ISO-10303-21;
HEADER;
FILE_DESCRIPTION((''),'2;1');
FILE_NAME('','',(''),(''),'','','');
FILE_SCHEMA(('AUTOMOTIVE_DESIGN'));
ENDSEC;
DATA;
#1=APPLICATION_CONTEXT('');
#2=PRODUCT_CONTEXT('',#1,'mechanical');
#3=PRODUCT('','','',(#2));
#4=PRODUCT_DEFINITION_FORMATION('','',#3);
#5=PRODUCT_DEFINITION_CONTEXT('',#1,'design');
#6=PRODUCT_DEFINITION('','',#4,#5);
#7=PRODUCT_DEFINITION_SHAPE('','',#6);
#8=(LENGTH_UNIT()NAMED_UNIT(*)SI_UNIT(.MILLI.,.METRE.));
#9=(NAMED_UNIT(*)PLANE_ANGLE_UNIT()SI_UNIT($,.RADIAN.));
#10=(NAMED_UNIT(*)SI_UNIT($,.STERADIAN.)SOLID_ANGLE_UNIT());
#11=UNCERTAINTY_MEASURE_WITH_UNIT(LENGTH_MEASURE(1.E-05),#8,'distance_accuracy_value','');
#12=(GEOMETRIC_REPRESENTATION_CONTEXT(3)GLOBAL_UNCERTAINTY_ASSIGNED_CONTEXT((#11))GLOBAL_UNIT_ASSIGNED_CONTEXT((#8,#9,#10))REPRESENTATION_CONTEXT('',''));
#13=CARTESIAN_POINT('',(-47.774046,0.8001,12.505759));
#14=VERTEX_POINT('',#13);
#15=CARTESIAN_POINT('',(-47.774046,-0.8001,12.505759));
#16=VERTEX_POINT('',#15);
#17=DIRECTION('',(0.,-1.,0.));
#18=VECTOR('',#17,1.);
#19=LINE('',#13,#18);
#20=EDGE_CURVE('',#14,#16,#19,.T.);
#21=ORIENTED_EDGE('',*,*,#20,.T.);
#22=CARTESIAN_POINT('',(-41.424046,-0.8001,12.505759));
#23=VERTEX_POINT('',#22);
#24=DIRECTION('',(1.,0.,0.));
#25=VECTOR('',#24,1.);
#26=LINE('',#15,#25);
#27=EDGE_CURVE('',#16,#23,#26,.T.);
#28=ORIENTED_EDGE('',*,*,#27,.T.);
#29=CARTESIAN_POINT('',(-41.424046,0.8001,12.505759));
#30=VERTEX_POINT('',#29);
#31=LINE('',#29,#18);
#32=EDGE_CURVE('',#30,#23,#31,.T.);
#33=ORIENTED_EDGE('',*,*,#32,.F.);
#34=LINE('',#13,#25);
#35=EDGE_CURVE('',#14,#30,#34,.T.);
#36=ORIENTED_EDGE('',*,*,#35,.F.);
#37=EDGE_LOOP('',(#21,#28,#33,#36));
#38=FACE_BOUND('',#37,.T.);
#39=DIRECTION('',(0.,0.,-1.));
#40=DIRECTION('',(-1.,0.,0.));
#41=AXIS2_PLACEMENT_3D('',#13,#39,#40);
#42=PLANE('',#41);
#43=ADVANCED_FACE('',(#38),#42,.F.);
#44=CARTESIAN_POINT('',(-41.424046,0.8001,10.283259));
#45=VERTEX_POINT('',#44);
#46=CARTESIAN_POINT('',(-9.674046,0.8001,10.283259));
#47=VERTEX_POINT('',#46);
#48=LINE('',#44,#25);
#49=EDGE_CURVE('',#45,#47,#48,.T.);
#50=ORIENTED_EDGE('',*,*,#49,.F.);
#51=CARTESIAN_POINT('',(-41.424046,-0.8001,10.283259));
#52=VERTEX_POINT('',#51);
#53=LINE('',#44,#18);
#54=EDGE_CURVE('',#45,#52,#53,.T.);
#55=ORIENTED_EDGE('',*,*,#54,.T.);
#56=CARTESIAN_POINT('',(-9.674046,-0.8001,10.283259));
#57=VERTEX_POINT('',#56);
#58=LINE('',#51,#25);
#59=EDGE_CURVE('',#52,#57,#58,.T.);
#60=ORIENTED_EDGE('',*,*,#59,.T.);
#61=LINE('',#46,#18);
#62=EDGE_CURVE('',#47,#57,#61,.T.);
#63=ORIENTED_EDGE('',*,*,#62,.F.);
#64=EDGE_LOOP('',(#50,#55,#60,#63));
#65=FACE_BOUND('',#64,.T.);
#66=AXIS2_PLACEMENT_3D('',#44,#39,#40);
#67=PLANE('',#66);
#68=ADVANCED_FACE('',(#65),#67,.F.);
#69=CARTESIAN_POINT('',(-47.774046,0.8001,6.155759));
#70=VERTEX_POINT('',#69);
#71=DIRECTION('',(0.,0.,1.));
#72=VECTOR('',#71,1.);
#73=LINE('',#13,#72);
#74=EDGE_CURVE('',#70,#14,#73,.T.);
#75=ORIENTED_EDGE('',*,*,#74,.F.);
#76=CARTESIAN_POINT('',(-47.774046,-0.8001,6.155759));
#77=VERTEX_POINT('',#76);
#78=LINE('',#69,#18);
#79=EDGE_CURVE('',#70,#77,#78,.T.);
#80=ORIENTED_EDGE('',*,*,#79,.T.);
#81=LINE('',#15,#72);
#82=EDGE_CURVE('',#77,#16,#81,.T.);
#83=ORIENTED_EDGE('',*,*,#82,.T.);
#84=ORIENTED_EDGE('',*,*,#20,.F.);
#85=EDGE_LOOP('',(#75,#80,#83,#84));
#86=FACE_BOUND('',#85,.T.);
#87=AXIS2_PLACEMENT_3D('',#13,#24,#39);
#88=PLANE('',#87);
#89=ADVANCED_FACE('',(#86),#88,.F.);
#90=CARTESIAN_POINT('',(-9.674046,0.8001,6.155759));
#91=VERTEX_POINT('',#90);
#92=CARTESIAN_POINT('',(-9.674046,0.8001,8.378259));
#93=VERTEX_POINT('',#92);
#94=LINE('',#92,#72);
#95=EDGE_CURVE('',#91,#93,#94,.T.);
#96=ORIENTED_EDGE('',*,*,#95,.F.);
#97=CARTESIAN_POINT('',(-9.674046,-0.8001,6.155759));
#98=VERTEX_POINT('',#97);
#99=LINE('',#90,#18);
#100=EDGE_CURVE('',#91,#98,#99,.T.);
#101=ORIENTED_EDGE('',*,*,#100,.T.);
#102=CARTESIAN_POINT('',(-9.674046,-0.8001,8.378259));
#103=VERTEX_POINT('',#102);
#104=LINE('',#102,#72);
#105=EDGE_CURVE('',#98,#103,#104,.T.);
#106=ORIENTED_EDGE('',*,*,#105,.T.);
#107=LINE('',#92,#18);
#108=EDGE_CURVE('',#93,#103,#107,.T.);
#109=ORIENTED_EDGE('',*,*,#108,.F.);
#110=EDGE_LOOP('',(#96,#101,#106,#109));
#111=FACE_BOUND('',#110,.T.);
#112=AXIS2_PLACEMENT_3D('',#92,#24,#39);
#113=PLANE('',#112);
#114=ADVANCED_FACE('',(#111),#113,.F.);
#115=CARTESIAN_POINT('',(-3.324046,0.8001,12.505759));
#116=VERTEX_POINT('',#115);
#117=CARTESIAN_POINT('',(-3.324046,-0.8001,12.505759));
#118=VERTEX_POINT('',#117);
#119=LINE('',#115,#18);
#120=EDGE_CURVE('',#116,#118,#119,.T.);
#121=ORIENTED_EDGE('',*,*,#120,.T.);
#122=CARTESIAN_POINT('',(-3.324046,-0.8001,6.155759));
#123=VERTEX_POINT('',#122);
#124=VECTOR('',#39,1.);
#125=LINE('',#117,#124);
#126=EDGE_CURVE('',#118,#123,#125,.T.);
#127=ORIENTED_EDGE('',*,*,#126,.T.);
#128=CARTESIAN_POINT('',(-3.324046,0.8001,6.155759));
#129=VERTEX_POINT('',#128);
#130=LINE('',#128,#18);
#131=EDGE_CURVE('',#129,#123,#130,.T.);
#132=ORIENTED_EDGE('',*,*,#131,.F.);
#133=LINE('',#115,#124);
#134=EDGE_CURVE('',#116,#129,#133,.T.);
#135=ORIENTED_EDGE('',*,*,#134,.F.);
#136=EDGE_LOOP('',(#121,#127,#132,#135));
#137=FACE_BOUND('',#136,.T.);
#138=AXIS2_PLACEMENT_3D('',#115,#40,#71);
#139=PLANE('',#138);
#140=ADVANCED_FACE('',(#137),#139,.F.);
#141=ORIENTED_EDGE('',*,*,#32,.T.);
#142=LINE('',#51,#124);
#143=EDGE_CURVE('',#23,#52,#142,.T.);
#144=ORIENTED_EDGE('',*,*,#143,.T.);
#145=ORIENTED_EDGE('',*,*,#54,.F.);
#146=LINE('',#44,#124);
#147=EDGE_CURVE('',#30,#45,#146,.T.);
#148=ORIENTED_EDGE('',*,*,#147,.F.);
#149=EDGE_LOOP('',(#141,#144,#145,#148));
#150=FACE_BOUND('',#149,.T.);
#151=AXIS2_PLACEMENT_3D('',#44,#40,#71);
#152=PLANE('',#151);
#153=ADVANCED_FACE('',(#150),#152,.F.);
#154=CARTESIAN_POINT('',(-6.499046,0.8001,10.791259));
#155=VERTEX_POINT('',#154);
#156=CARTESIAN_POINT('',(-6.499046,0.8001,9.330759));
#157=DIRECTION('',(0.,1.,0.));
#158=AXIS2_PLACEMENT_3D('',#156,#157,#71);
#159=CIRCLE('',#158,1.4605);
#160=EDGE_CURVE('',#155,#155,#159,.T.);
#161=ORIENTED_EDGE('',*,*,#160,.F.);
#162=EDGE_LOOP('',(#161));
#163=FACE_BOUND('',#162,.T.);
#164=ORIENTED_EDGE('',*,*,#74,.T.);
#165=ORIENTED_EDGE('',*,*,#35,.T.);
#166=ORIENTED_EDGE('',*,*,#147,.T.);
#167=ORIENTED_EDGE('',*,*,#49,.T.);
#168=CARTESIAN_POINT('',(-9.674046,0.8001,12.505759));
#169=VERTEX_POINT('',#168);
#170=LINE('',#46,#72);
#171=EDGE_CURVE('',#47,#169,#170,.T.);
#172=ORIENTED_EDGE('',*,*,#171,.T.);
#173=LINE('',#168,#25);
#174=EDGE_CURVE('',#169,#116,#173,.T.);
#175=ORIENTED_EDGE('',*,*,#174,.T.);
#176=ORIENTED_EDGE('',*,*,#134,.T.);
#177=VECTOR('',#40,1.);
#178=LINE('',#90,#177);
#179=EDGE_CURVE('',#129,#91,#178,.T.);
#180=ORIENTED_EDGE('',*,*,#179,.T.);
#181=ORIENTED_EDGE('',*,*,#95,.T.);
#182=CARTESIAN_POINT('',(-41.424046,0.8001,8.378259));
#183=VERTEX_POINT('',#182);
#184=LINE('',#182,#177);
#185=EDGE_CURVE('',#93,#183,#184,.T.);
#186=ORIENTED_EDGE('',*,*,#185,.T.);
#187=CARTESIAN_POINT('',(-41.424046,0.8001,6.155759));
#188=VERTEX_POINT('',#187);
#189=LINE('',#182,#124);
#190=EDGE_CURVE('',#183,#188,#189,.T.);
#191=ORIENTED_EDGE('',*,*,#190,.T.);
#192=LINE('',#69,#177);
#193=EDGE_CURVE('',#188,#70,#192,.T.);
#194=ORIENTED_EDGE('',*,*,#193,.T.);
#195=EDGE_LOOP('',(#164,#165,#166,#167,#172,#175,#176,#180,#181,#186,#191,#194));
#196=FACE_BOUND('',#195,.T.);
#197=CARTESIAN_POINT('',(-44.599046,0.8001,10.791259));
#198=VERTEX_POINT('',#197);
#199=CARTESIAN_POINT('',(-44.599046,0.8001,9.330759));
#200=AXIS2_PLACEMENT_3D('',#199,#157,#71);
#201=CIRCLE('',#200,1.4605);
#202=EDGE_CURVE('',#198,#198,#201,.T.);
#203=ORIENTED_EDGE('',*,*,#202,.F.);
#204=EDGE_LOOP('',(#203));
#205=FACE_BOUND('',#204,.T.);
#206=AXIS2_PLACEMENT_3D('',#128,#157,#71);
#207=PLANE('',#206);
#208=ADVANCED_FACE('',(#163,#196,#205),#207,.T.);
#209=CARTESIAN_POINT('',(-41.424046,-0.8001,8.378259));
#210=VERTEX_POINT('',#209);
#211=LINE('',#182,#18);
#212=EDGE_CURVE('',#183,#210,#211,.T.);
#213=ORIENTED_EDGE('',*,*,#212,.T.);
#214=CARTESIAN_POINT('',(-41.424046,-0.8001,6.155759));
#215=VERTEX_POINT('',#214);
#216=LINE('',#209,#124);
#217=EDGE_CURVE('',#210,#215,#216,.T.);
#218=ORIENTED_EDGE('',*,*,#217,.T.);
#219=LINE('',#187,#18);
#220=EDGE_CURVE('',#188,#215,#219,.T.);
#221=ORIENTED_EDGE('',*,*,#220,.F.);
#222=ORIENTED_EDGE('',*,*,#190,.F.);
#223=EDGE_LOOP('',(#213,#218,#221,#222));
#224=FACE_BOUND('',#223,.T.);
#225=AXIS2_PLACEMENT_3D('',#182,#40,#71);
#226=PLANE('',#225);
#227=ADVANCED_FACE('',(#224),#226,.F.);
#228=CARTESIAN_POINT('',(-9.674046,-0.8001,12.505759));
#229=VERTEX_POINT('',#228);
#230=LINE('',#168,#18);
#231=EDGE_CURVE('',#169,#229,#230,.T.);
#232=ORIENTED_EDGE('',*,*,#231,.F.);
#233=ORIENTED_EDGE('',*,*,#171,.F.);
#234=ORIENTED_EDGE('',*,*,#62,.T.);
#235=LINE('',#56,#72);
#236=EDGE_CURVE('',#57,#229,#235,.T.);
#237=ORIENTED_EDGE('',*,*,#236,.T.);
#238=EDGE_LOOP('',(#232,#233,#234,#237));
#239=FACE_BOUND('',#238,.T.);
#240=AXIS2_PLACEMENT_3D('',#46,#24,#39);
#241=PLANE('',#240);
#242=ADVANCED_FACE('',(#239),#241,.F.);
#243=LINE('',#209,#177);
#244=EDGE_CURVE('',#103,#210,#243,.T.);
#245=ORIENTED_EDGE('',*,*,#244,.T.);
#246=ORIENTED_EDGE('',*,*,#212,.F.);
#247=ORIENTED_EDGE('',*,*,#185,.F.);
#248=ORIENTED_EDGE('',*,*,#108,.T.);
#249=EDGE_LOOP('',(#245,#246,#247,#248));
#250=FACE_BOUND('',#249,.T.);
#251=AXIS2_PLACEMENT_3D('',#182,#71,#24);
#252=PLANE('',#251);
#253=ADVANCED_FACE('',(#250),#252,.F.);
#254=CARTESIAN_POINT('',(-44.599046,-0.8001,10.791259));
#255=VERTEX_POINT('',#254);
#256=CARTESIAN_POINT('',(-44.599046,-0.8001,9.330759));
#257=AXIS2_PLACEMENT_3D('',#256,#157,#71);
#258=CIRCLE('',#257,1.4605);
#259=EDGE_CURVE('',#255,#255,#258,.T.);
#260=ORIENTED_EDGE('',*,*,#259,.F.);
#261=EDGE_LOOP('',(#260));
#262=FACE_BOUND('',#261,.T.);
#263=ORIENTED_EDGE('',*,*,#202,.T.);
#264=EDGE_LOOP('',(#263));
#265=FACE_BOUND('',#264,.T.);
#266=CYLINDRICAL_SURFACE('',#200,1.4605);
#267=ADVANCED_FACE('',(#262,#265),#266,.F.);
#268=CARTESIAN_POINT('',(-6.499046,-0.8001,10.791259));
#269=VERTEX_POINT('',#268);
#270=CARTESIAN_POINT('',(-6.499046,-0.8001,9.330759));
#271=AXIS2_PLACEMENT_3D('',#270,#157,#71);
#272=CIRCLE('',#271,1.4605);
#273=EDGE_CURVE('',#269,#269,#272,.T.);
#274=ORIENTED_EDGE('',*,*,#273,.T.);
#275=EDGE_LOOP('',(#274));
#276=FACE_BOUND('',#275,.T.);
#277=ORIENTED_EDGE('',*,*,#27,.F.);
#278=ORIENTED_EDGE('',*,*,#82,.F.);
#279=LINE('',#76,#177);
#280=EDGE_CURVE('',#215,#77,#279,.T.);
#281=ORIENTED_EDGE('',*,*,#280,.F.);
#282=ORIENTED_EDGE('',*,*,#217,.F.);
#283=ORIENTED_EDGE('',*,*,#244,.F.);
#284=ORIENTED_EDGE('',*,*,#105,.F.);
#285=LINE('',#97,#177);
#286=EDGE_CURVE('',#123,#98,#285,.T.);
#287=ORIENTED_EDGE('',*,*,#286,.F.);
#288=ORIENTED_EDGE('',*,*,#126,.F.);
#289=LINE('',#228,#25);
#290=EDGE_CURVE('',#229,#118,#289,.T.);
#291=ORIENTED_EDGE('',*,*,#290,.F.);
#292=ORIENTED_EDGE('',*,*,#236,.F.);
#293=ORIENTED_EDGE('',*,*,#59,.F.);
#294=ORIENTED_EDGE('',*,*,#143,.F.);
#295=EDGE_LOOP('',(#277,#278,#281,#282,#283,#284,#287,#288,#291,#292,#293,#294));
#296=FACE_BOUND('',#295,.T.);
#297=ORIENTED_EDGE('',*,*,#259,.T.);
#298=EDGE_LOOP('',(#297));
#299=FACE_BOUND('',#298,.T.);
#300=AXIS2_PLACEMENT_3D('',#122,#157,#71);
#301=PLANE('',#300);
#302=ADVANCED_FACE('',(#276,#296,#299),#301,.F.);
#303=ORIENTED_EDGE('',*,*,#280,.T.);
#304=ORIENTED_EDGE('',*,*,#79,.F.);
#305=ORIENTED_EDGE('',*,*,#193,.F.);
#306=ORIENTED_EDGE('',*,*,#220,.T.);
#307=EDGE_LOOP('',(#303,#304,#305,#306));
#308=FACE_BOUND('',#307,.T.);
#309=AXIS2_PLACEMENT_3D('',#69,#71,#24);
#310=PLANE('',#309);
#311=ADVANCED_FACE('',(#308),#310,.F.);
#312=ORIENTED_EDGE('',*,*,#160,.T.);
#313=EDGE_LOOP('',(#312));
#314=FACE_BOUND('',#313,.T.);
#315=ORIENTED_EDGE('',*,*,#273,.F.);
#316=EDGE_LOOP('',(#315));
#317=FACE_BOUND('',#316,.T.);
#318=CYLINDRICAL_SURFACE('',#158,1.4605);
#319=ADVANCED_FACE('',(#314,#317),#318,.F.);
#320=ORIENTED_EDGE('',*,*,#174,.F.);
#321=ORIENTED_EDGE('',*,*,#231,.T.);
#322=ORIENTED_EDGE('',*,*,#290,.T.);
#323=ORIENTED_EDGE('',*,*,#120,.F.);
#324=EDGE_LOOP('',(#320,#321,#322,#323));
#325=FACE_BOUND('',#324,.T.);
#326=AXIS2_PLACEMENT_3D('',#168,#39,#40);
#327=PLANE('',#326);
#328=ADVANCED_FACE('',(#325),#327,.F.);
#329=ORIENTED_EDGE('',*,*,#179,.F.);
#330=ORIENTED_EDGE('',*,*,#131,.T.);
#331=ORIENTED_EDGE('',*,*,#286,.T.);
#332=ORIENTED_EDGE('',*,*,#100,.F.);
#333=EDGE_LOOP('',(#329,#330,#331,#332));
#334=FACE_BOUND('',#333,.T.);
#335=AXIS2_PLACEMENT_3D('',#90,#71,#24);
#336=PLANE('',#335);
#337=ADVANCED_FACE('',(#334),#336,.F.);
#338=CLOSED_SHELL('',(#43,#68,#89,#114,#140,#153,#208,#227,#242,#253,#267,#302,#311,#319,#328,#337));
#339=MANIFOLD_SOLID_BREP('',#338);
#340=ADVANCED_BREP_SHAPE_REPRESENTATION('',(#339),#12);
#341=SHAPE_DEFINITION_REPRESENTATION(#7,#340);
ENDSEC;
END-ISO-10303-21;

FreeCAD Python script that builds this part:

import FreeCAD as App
import Part
import Sketcher
Q = App.Units.Quantity

doc = App.newDocument("Part")
body = doc.addObject("PartDesign::Body", "Body")

# Sketch on XZ plane
sketch1 = body.newObject("Sketcher::SketchObject", "Sketch")
sketch1.AttachmentSupport = (doc.getObject("XZ_Plane"), [""])
sketch1.MapMode = "FlatFace"
sketch1.addGeometry(Part.LineSegment(App.Vector(-41.4, 12.5, 0), App.Vector(-41.4, 10.3, 0)), False)
sketch1.addGeometry(Part.LineSegment(App.Vector(-41.4, 10.3, 0), App.Vector(-9.7, 10.3, 0)), False)
sketch1.addGeometry(Part.LineSegment(App.Vector(-9.7, 10.3, 0), App.Vector(-9.7, 12.5, 0)), False)
sketch1.addGeometry(Part.LineSegment(App.Vector(-9.7, 12.5, 0), App.Vector(-3.3, 12.5, 0)), False)
sketch1.addGeometry(Part.LineSegment(App.Vector(-3.3, 12.5, 0), App.Vector(-3.3, 6.2, 0)), False)
sketch1.addGeometry(Part.LineSegment(App.Vector(-3.3, 6.2, 0), App.Vector(-9.7, 6.2, 0)), False)
sketch1.addGeometry(Part.LineSegment(App.Vector(-9.7, 6.2, 0), App.Vector(-9.7, 8.4, 0)), False)
sketch1.addGeometry(Part.LineSegment(App.Vector(-9.7, 8.4, 0), App.Vector(-41.4, 8.4, 0)), False)
sketch1.addGeometry(Part.LineSegment(App.Vector(-41.4, 8.4, 0), App.Vector(-41.4, 6.2, 0)), False)
sketch1.addGeometry(Part.LineSegment(App.Vector(-41.4, 6.2, 0), App.Vector(-47.8, 6.2, 0)), False)
sketch1.addGeometry(Part.LineSegment(App.Vector(-47.8, 6.2, 0), App.Vector(-47.8, 12.5, 0)), False)
sketch1.addGeometry(Part.LineSegment(App.Vector(-47.8, 12.5, 0), App.Vector(-41.4, 12.5, 0)), False)
sketch1.addConstraint(Sketcher.Constraint("Coincident", 0, 2, 1, 1))
sketch1.addConstraint(Sketcher.Constraint("Coincident", 1, 2, 2, 1))
sketch1.addConstraint(Sketcher.Constraint("Coincident", 2, 2, 3, 1))
sketch1.addConstraint(Sketcher.Constraint("Coincident", 3, 2, 4, 1))
sketch1.addConstraint(Sketcher.Constraint("Coincident", 4, 2, 5, 1))
sketch1.addConstraint(Sketcher.Constraint("Coincident", 5, 2, 6, 1))
sketch1.addConstraint(Sketcher.Constraint("Coincident", 6, 2, 7, 1))
sketch1.addConstraint(Sketcher.Constraint("Coincident", 7, 2, 8, 1))
sketch1.addConstraint(Sketcher.Constraint("Coincident", 8, 2, 9, 1))
sketch1.addConstraint(Sketcher.Constraint("Coincident", 9, 2, 10, 1))
sketch1.addConstraint(Sketcher.Constraint("Coincident", 10, 2, 11, 1))
sketch1.addConstraint(Sketcher.Constraint("Coincident", 11, 2, 0, 1))
sketch1.addConstraint(Sketcher.Constraint("Vertical", 0))
sketch1.addConstraint(Sketcher.Constraint("Horizontal", 1))
sketch1.addConstraint(Sketcher.Constraint("Vertical", 2))
sketch1.addConstraint(Sketcher.Constraint("Horizontal", 3))
sketch1.addConstraint(Sketcher.Constraint("Vertical", 4))
sketch1.addConstraint(Sketcher.Constraint("Horizontal", 5))
sketch1.addConstraint(Sketcher.Constraint("Vertical", 6))
sketch1.addConstraint(Sketcher.Constraint("Horizontal", 7))
sketch1.addConstraint(Sketcher.Constraint("Vertical", 8))
sketch1.addConstraint(Sketcher.Constraint("Horizontal", 9))
sketch1.addConstraint(Sketcher.Constraint("Vertical", 10))
sketch1.addConstraint(Sketcher.Constraint("Horizontal", 11))
sketch1.addConstraint(Sketcher.Constraint("Horizontal", 5, 2, 8, 2))
sketch1.addConstraint(Sketcher.Constraint("Horizontal", 3, 2, 10, 2))
sketch1.addConstraint(Sketcher.Constraint("Vertical", 2, 2, 5, 2))
sketch1.addConstraint(Sketcher.Constraint("Vertical", 0, 2, 7, 2))
sketch1.addConstraint(Sketcher.Constraint("Equal", 5, 9))
sketch1.addConstraint(Sketcher.Constraint("Equal", 11, 4))
sketch1.addConstraint(Sketcher.Constraint("Equal", 2, 6))
sketch1.addConstraint(Sketcher.Constraint("DistanceX", 1, 1, 1, 2, Q("1.25 in")))
sketch1.addConstraint(Sketcher.Constraint("DistanceX", 3, 1, 3, 2, Q("0.25 in")))
sketch1.addConstraint(Sketcher.Constraint("DistanceY", 0, 2, 0, 1, Q("0.0875 in")))
sketch1.addConstraint(Sketcher.Constraint("DistanceY", -1, 1, 0, 2, Q("10.283259 mm")))
sketch1.addConstraint(Sketcher.Constraint("DistanceX", 0, 2, -1, 1, Q("41.424046 mm")))
pad1 = body.newObject("PartDesign::Pad", "Pad")
pad1.Profile = sketch1
pad1.Length = Q("0.063 in")
pad1.Midplane = True

# Sketch on XZ plane
sketch2 = body.newObject("Sketcher::SketchObject", "Sketch001")
sketch2.AttachmentSupport = (doc.getObject("XZ_Plane"), [""])
sketch2.MapMode = "FlatFace"
sketch2.AttachmentOffset = App.Placement(App.Vector(0, 0, -0.0315 * 25.4), App.Rotation())
sketch2.addGeometry(Part.Circle(App.Vector(-44.6, 9.3, 0), App.Vector(0, 0, 1), 1.5), False)
sketch2.addConstraint(Sketcher.Constraint("Diameter", 0, Q("0.115 in")))
sketch2.addConstraint(Sketcher.Constraint("DistanceY", -1, 1, 0, 3, Q("9.330759 mm")))
sketch2.addConstraint(Sketcher.Constraint("DistanceX", 0, 3, -1, 1, Q("44.599046 mm")))
doc.recompute()
hole = body.newObject("PartDesign::Hole", "Hole")
hole.Profile = sketch2
hole.ThreadType = "None"
hole.Diameter = Q("0.115 in")
hole.DepthType = "ThroughAll"
hole.Reversed = True
doc.recompute()

datumplane = body.newObject("PartDesign::Plane", "DatumPlane")
datumplane.AttachmentSupport = (doc.getObject("YZ_Plane"), [""])
datumplane.MapMode = "FlatFace"
datumplane.AttachmentOffset = App.Placement(App.Vector(0, 0, -25.549046), App.Rotation())
mirrored = body.newObject("PartDesign::Mirrored", "Mirrored")
mirrored.Originals = [hole]
mirrored.MirrorPlane = (datumplane, [""])
body.Tip = mirrored

doc.recompute()
